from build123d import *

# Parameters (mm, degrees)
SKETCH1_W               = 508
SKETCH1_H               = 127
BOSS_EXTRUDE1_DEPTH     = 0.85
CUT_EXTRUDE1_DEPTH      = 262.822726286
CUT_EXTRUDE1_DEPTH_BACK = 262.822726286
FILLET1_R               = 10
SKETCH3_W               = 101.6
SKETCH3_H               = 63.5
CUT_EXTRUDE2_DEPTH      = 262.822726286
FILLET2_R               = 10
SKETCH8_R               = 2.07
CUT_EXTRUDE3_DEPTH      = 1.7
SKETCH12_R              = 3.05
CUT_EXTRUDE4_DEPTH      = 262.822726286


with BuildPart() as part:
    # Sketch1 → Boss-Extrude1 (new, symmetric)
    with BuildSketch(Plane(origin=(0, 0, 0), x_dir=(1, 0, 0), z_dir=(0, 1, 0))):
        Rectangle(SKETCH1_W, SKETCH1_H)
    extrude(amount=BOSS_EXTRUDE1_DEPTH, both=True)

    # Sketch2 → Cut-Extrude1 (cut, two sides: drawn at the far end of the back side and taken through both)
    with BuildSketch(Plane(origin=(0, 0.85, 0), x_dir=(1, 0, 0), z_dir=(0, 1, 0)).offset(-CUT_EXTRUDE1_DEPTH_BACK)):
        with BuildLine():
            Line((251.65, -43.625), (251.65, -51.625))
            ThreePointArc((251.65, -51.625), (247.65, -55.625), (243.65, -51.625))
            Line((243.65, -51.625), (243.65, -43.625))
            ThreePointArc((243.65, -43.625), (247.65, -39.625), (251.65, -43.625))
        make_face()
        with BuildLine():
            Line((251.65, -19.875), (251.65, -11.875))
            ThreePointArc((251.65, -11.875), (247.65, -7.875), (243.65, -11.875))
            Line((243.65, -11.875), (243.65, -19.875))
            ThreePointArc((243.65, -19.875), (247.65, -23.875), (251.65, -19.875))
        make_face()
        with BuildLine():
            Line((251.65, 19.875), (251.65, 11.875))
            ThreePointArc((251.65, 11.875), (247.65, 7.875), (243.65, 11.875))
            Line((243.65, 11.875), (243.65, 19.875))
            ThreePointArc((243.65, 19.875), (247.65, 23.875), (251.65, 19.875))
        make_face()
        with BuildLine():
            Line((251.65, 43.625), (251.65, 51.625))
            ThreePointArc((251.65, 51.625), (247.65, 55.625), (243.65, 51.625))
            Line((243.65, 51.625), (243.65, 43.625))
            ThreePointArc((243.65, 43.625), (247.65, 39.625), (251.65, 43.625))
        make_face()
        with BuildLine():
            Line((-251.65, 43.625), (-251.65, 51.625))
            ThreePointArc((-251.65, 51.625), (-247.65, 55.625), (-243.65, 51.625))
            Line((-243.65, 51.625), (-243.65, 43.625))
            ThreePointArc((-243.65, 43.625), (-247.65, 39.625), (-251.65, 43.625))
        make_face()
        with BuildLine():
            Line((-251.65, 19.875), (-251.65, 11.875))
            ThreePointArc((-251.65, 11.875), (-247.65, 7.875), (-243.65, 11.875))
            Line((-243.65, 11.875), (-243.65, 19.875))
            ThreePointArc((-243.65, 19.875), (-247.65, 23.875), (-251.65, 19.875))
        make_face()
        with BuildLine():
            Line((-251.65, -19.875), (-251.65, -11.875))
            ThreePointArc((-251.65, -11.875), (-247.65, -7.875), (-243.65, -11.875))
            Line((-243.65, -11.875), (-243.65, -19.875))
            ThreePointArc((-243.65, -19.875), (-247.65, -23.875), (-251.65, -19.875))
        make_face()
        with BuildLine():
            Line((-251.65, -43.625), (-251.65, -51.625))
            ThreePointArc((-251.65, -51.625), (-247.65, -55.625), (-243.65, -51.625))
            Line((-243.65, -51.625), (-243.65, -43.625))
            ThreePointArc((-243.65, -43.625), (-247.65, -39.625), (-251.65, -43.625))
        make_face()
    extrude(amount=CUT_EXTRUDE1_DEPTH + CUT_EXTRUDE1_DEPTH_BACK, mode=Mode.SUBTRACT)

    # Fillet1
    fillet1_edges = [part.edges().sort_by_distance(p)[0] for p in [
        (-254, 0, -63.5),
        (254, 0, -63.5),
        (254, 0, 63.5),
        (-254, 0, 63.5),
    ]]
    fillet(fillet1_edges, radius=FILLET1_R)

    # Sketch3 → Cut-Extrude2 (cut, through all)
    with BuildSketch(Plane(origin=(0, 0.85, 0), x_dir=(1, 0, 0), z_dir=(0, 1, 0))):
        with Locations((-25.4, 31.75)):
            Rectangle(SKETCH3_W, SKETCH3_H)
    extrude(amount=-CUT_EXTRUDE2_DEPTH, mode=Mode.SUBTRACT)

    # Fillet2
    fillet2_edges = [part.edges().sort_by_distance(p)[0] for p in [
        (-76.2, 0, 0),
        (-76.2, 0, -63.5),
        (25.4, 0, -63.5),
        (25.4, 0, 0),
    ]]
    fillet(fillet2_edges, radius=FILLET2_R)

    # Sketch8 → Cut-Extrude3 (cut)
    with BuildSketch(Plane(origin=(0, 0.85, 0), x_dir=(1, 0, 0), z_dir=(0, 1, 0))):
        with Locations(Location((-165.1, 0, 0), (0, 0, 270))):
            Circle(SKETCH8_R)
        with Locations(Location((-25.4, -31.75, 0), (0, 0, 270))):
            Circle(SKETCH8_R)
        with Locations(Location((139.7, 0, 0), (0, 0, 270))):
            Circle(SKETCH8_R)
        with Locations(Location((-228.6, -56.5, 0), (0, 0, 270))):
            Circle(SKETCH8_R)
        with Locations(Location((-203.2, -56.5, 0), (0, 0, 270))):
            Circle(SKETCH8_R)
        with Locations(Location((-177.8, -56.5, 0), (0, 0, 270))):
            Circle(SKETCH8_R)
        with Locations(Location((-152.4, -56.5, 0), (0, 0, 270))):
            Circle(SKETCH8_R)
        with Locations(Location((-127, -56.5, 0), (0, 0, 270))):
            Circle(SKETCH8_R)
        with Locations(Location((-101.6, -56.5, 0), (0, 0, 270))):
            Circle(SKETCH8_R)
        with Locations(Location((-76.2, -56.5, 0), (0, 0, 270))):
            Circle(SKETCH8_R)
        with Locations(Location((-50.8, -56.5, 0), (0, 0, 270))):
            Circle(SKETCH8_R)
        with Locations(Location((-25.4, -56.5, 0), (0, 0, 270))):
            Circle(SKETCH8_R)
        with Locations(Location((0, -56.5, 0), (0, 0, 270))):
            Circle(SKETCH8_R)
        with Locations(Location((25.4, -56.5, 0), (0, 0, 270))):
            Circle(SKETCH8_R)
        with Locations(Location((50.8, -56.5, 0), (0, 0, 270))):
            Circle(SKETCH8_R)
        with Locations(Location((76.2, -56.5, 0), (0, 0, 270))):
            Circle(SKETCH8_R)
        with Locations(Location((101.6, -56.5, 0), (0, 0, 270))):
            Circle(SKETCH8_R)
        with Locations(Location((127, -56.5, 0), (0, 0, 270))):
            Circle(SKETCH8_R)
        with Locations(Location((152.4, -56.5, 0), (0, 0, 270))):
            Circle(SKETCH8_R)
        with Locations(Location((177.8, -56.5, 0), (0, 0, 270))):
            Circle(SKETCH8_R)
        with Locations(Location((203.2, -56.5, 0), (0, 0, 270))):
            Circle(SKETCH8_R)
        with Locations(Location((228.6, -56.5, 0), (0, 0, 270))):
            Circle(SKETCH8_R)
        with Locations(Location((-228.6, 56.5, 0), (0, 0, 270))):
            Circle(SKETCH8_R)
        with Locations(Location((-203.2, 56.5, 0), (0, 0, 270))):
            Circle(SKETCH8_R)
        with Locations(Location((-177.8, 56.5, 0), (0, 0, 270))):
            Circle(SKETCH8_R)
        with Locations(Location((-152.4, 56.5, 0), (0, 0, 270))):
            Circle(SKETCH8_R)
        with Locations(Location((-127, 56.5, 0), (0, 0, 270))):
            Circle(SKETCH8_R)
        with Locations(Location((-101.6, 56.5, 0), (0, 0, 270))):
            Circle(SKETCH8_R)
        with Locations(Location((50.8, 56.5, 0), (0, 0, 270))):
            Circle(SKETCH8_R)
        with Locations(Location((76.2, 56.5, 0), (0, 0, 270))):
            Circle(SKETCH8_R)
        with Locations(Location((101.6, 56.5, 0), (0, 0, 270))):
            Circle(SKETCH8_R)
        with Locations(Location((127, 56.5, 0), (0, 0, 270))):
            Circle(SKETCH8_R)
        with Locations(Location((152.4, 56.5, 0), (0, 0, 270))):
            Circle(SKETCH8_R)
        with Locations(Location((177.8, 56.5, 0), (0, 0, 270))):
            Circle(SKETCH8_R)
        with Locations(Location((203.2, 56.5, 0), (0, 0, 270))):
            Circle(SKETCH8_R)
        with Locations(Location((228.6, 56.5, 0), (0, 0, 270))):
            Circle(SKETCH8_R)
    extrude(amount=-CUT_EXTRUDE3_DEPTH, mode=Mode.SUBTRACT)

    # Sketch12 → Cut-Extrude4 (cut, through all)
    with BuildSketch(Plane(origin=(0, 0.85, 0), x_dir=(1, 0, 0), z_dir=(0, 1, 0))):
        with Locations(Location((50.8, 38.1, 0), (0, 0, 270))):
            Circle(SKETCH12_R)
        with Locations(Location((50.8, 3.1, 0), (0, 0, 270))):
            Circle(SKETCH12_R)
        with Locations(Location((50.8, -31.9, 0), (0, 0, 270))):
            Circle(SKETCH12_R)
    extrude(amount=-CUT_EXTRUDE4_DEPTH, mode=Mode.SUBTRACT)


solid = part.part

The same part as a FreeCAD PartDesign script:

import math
import FreeCAD as App
import Part
import Sketcher

V = App.Vector


def edges_at(feature, points):
    """Names of the edges that pass closest to the given points."""
    edges = feature.Shape.Edges
    near = lambda p: min(range(len(edges)), key=lambda i: edges[i].distToShape(Part.Vertex(*p))[0])
    return sorted({f"Edge{near(p) + 1}" for p in points})


def add_polygon(sketch, points):
    """Adds a closed chain of lines whose ends are joined by coincident constraints."""
    first, n = sketch.GeometryCount, len(points)
    for a, b in zip(points, points[1:] + points[:1]):
        sketch.addGeometry(Part.LineSegment(App.Vector(*a, 0), App.Vector(*b, 0)), False)
    for i in range(n):
        sketch.addConstraint(Sketcher.Constraint("Coincident", first + i, 2, first + (i + 1) % n, 1))

doc = App.newDocument("Part")
body = doc.addObject("PartDesign::Body", "Body")

# Sketch on XZ plane
sketch1 = body.newObject("Sketcher::SketchObject", "Sketch")
sketch1.AttachmentSupport = (doc.getObject("XZ_Plane"), [""])
sketch1.MapMode = "FlatFace"
add_polygon(sketch1, [(-254, -64), (-254, 64), (254, 64), (254, -64)])  # lines 0-3
sketch1.addConstraint([
    Sketcher.Constraint("Vertical", 0),
    Sketcher.Constraint("Horizontal", 1),
    Sketcher.Constraint("Vertical", 2),
    Sketcher.Constraint("Horizontal", 3),
    Sketcher.Constraint("Symmetric", 0, 2, 2, 2, -1, 1),
    Sketcher.Constraint("DistanceX", 1, 1, 1, 2, 508.0),
    Sketcher.Constraint("DistanceY", 0, 1, 0, 2, 127.0),
])
pad1 = body.newObject("PartDesign::Pad", "Pad")
pad1.Profile = sketch1
pad1.Length = 1.7
pad1.Midplane = True

# Sketch on XZ plane
sketch2 = body.newObject("Sketcher::SketchObject", "Sketch001")
sketch2.AttachmentSupport = (doc.getObject("XZ_Plane"), [""])
sketch2.MapMode = "FlatFace"
sketch2.AttachmentOffset = App.Placement(V(0, 0, -0.85), App.Rotation())
sketch2.addGeometry([
    Part.LineSegment(V(251.7, 51.6, 0), V(251.7, 43.6, 0)),  # 0
    Part.ArcOfCircle(Part.Circle(V(247.7, 43.6, 0), V(0, 0, 1), 4), math.radians(180), math.radians(360)),  # 1
    Part.LineSegment(V(243.7, 43.6, 0), V(243.7, 51.6, 0)),  # 2
    Part.ArcOfCircle(Part.Circle(V(247.7, 51.6, 0), V(0, 0, 1), 4), math.radians(0), math.radians(180)),  # 3
    Part.LineSegment(V(251.7, 19.9, 0), V(251.7, 11.9, 0)),  # 4
    Part.ArcOfCircle(Part.Circle(V(247.7, 11.9, 0), V(0, 0, 1), 4), math.radians(180), math.radians(360)),  # 5
    Part.LineSegment(V(243.7, 11.9, 0), V(243.7, 19.9, 0)),  # 6
    Part.ArcOfCircle(Part.Circle(V(247.7, 19.9, 0), V(0, 0, 1), 4), math.radians(0), math.radians(180)),  # 7
    Part.LineSegment(V(251.7, -11.9, 0), V(251.7, -19.9, 0)),  # 8
    Part.ArcOfCircle(Part.Circle(V(247.7, -19.9, 0), V(0, 0, 1), 4), math.radians(180), math.radians(360)),  # 9
    Part.LineSegment(V(243.7, -19.9, 0), V(243.7, -11.9, 0)),  # 10
    Part.ArcOfCircle(Part.Circle(V(247.7, -11.9, 0), V(0, 0, 1), 4), math.radians(0), math.radians(180)),  # 11
    Part.LineSegment(V(251.7, -43.6, 0), V(251.7, -51.6, 0)),  # 12
    Part.ArcOfCircle(Part.Circle(V(247.7, -51.6, 0), V(0, 0, 1), 4), math.radians(180), math.radians(360)),  # 13
    Part.LineSegment(V(243.7, -51.6, 0), V(243.7, -43.6, 0)),  # 14
    Part.ArcOfCircle(Part.Circle(V(247.7, -43.6, 0), V(0, 0, 1), 4), math.radians(0), math.radians(180)),  # 15
    Part.LineSegment(V(-251.7, -51.6, 0), V(-251.7, -43.6, 0)),  # 16
    Part.ArcOfCircle(Part.Circle(V(-247.7, -43.6, 0), V(0, 0, 1), 4), math.radians(0), math.radians(180)),  # 17
    Part.LineSegment(V(-243.7, -43.6, 0), V(-243.7, -51.6, 0)),  # 18
    Part.ArcOfCircle(Part.Circle(V(-247.7, -51.6, 0), V(0, 0, 1), 4), math.radians(180), math.radians(360)),  # 19
    Part.LineSegment(V(-251.7, -19.9, 0), V(-251.7, -11.9, 0)),  # 20
    Part.ArcOfCircle(Part.Circle(V(-247.7, -11.9, 0), V(0, 0, 1), 4), math.radians(0), math.radians(180)),  # 21
    Part.LineSegment(V(-243.7, -11.9, 0), V(-243.7, -19.9, 0)),  # 22
    Part.ArcOfCircle(Part.Circle(V(-247.7, -19.9, 0), V(0, 0, 1), 4), math.radians(180), math.radians(360)),  # 23
    Part.LineSegment(V(-251.7, 11.9, 0), V(-251.7, 19.9, 0)),  # 24
    Part.ArcOfCircle(Part.Circle(V(-247.7, 19.9, 0), V(0, 0, 1), 4), math.radians(0), math.radians(180)),  # 25
    Part.LineSegment(V(-243.7, 19.9, 0), V(-243.7, 11.9, 0)),  # 26
    Part.ArcOfCircle(Part.Circle(V(-247.7, 11.9, 0), V(0, 0, 1), 4), math.radians(180), math.radians(360)),  # 27
    Part.LineSegment(V(-251.7, 43.6, 0), V(-251.7, 51.6, 0)),  # 28
    Part.ArcOfCircle(Part.Circle(V(-247.7, 51.6, 0), V(0, 0, 1), 4), math.radians(0), math.radians(180)),  # 29
    Part.LineSegment(V(-243.7, 51.6, 0), V(-243.7, 43.6, 0)),  # 30
    Part.ArcOfCircle(Part.Circle(V(-247.7, 43.6, 0), V(0, 0, 1), 4), math.radians(180), math.radians(360)),  # 31
], False)
sketch2.addConstraint([
    Sketcher.Constraint("Tangent", 0, 2, 1, 2),
    Sketcher.Constraint("Tangent", 1, 1, 2, 1),
    Sketcher.Constraint("Tangent", 2, 2, 3, 2),
    Sketcher.Constraint("Tangent", 3, 1, 0, 1),
    Sketcher.Constraint("Tangent", 4, 2, 5, 2),
    Sketcher.Constraint("Tangent", 5, 1, 6, 1),
    Sketcher.Constraint("Tangent", 6, 2, 7, 2),
    Sketcher.Constraint("Tangent", 7, 1, 4, 1),
    Sketcher.Constraint("Tangent", 8, 2, 9, 2),
    Sketcher.Constraint("Tangent", 9, 1, 10, 1),
    Sketcher.Constraint("Tangent", 10, 2, 11, 2),
    Sketcher.Constraint("Tangent", 11, 1, 8, 1),
    Sketcher.Constraint("Tangent", 12, 2, 13, 2),
    Sketcher.Constraint("Tangent", 13, 1, 14, 1),
    Sketcher.Constraint("Tangent", 14, 2, 15, 2),
    Sketcher.Constraint("Tangent", 15, 1, 12, 1),
    Sketcher.Constraint("Tangent", 16, 2, 17, 2),
    Sketcher.Constraint("Tangent", 17, 1, 18, 1),
    Sketcher.Constraint("Tangent", 18, 2, 19, 2),
    Sketcher.Constraint("Tangent", 19, 1, 16, 1),
    Sketcher.Constraint("Tangent", 20, 2, 21, 2),
    Sketcher.Constraint("Tangent", 21, 1, 22, 1),
    Sketcher.Constraint("Tangent", 22, 2, 23, 2),
    Sketcher.Constraint("Tangent", 23, 1, 20, 1),
    Sketcher.Constraint("Tangent", 24, 2, 25, 2),
    Sketcher.Constraint("Tangent", 25, 1, 26, 1),
    Sketcher.Constraint("Tangent", 26, 2, 27, 2),
    Sketcher.Constraint("Tangent", 27, 1, 24, 1),
    Sketcher.Constraint("Tangent", 28, 2, 29, 2),
    Sketcher.Constraint("Tangent", 29, 1, 30, 1),
    Sketcher.Constraint("Tangent", 30, 2, 31, 2),
    Sketcher.Constraint("Tangent", 31, 1, 28, 1),
    Sketcher.Constraint("Vertical", 0),
    Sketcher.Constraint("Vertical", 2),
    Sketcher.Constraint("Vertical", 4),
    Sketcher.Constraint("Vertical", 6),
    Sketcher.Constraint("Vertical", 8),
    Sketcher.Constraint("Vertical", 10),
    Sketcher.Constraint("Vertical", 12),
    Sketcher.Constraint("Vertical", 14),
    Sketcher.Constraint("Vertical", 16),
    Sketcher.Constraint("Vertical", 18),
    Sketcher.Constraint("Vertical", 20),
    Sketcher.Constraint("Vertical", 22),
    Sketcher.Constraint("Vertical", 24),
    Sketcher.Constraint("Vertical", 26),
    Sketcher.Constraint("Vertical", 28),
    Sketcher.Constraint("Vertical", 30),
    Sketcher.Constraint("Equal", 3, 5),
    Sketcher.Constraint("Equal", 7, 9),
    Sketcher.Constraint("Equal", 11, 13),
    Sketcher.Constraint("Equal", 15, 17),
    Sketcher.Constraint("Equal", 19, 21),
    Sketcher.Constraint("Equal", 23, 25),
    Sketcher.Constraint("Equal", 27, 29),
    Sketcher.Constraint("Symmetric", 1, 3, 17, 3, -1, 1),
    Sketcher.Constraint("Symmetric", 5, 3, 21, 3, -1, 1),
    Sketcher.Constraint("Symmetric", 9, 3, 25, 3, -1, 1),
    Sketcher.Constraint("Symmetric", 13, 3, 29, 3, -1, 1),
    Sketcher.Constraint("Symmetric", 15, 3, 17, 3, -2),
    Sketcher.Constraint("Symmetric", 11, 3, 21, 3, -2),
    Sketcher.Constraint("Horizontal", 13, 3, 19, 3),
    Sketcher.Constraint("Horizontal", 9, 3, 23, 3),
    Sketcher.Constraint("Horizontal", 7, 3, 25, 3),
    Sketcher.Constraint("Horizontal", 5, 3, 27, 3),
    Sketcher.Constraint("Horizontal", 3, 3, 29, 3),
    Sketcher.Constraint("Horizontal", 1, 3, 31, 3),
    Sketcher.Constraint("Vertical", 3, 3, 5, 3),
    Sketcher.Constraint("Equal", 2, 4),
    Sketcher.Constraint("Radius", 1, 4.0),
    Sketcher.Constraint("DistanceY", 0, 2, 0, 1, 8.0),
    Sketcher.Constraint("DistanceY", 9, 3, 1, 3, 63.5),
    Sketcher.Constraint("DistanceX", 17, 3, 15, 3, 495.3),
    Sketcher.Constraint("DistanceY", 5, 3, 1, 3, 31.75),
])
pocket1 = body.newObject("PartDesign::Pocket", "Pocket")
pocket1.Profile = sketch2
pocket1.Type = "ThroughAll"
pocket1.Midplane = True
doc.recompute()

fillet = body.newObject("PartDesign::Fillet", "Fillet")
fillet.Base = (pocket1, edges_at(pocket1, [
    (-254, 0, -63.5),
    (254, 0, -63.5),
    (254, 0, 63.5),
    (-254, 0, 63.5),
]))
fillet.Radius = 10

# Sketch on XZ plane
sketch3 = body.newObject("Sketcher::SketchObject", "Sketch002")
sketch3.AttachmentSupport = (doc.getObject("XZ_Plane"), [""])
sketch3.MapMode = "FlatFace"
sketch3.AttachmentOffset = App.Placement(V(0, 0, -0.85), App.Rotation())
add_polygon(sketch3, [(-76, -64), (-76, 0), (25, 0), (25, -64)])  # lines 0-3
sketch3.addConstraint([
    Sketcher.Constraint("Vertical", 0),
    Sketcher.Constraint("Horizontal", 1),
    Sketcher.Constraint("Vertical", 2),
    Sketcher.Constraint("Horizontal", 3),
    Sketcher.Constraint("PointOnObject", 0, 2, -1),
    Sketcher.Constraint("DistanceX", 1, 1, 1, 2, 101.6),
    Sketcher.Constraint("DistanceY", 0, 1, 0, 2, 63.5),
    Sketcher.Constraint("DistanceX", 0, 2, -1, 1, 76.2),
])
pocket2 = body.newObject("PartDesign::Pocket", "Pocket001")
pocket2.Profile = sketch3
pocket2.Type = "ThroughAll"
pocket2.Reversed = True
doc.recompute()

fillet2 = body.newObject("PartDesign::Fillet", "Fillet001")
fillet2.Base = (pocket2, edges_at(pocket2, [
    (-76.2, 0, 0),
    (-76.2, 0, -63.5),
    (25.4, 0, -63.5),
    (25.4, 0, 0),
]))
fillet2.Radius = 10

# Sketch on XZ plane
sketch4 = body.newObject("Sketcher::SketchObject", "Sketch003")
sketch4.AttachmentSupport = (doc.getObject("XZ_Plane"), [""])
sketch4.MapMode = "FlatFace"
sketch4.AttachmentOffset = App.Placement(V(0, 0, -0.85), App.Rotation())
sketch4.addGeometry([
    Part.Circle(V(-165.1, 0, 0), V(0, 0, 1), 2.1),  # 0
    Part.Circle(V(-25.4, 31.8, 0), V(0, 0, 1), 2.1),  # 1
    Part.Circle(V(139.7, 0, 0), V(0, 0, 1), 2.1),  # 2
    Part.Circle(V(-228.6, 56.5, 0), V(0, 0, 1), 2.1),  # 3
    Part.Circle(V(-203.2, 56.5, 0), V(0, 0, 1), 2.1),  # 4
    Part.Circle(V(-177.8, 56.5, 0), V(0, 0, 1), 2.1),  # 5
    Part.Circle(V(-152.4, 56.5, 0), V(0, 0, 1), 2.1),  # 6
    Part.Circle(V(-127, 56.5, 0), V(0, 0, 1), 2.1),  # 7
    Part.Circle(V(-101.6, 56.5, 0), V(0, 0, 1), 2.1),  # 8
    Part.Circle(V(-76.2, 56.5, 0), V(0, 0, 1), 2.1),  # 9
    Part.Circle(V(-50.8, 56.5, 0), V(0, 0, 1), 2.1),  # 10
    Part.Circle(V(-25.4, 56.5, 0), V(0, 0, 1), 2.1),  # 11
    Part.Circle(V(0, 56.5, 0), V(0, 0, 1), 2.1),  # 12
    Part.Circle(V(25.4, 56.5, 0), V(0, 0, 1), 2.1),  # 13
    Part.Circle(V(50.8, 56.5, 0), V(0, 0, 1), 2.1),  # 14
    Part.Circle(V(76.2, 56.5, 0), V(0, 0, 1), 2.1),  # 15
    Part.Circle(V(101.6, 56.5, 0), V(0, 0, 1), 2.1),  # 16
    Part.Circle(V(127, 56.5, 0), V(0, 0, 1), 2.1),  # 17
    Part.Circle(V(152.4, 56.5, 0), V(0, 0, 1), 2.1),  # 18
    Part.Circle(V(177.8, 56.5, 0), V(0, 0, 1), 2.1),  # 19
    Part.Circle(V(203.2, 56.5, 0), V(0, 0, 1), 2.1),  # 20
    Part.Circle(V(228.6, 56.5, 0), V(0, 0, 1), 2.1),  # 21
    Part.Circle(V(-228.6, -56.5, 0), V(0, 0, 1), 2.1),  # 22
    Part.Circle(V(-203.2, -56.5, 0), V(0, 0, 1), 2.1),  # 23
    Part.Circle(V(-177.8, -56.5, 0), V(0, 0, 1), 2.1),  # 24
    Part.Circle(V(-152.4, -56.5, 0), V(0, 0, 1), 2.1),  # 25
    Part.Circle(V(-127, -56.5, 0), V(0, 0, 1), 2.1),  # 26
    Part.Circle(V(-101.6, -56.5, 0), V(0, 0, 1), 2.1),  # 27
    Part.Circle(V(50.8, -56.5, 0), V(0, 0, 1), 2.1),  # 28
    Part.Circle(V(76.2, -56.5, 0), V(0, 0, 1), 2.1),  # 29
    Part.Circle(V(101.6, -56.5, 0), V(0, 0, 1), 2.1),  # 30
    Part.Circle(V(127, -56.5, 0), V(0, 0, 1), 2.1),  # 31
    Part.Circle(V(152.4, -56.5, 0), V(0, 0, 1), 2.1),  # 32
    Part.Circle(V(177.8, -56.5, 0), V(0, 0, 1), 2.1),  # 33
    Part.Circle(V(203.2, -56.5, 0), V(0, 0, 1), 2.1),  # 34
    Part.Circle(V(228.6, -56.5, 0), V(0, 0, 1), 2.1),  # 35
], False)
sketch4.addConstraint([
    Sketcher.Constraint("Equal", 0, 1),
    Sketcher.Constraint("Equal", 1, 2),
    Sketcher.Constraint("Equal", 2, 3),
    Sketcher.Constraint("Equal", 3, 4),
    Sketcher.Constraint("Equal", 4, 5),
    Sketcher.Constraint("Equal", 5, 6),
    Sketcher.Constraint("Equal", 6, 7),
    Sketcher.Constraint("Equal", 7, 8),
    Sketcher.Constraint("Equal", 8, 9),
    Sketcher.Constraint("Equal", 9, 10),
    Sketcher.Constraint("Equal", 10, 11),
    Sketcher.Constraint("Equal", 11, 12),
    Sketcher.Constraint("Equal", 12, 13),
    Sketcher.Constraint("Equal", 13, 14),
    Sketcher.Constraint("Equal", 14, 15),
    Sketcher.Constraint("Equal", 15, 16),
    Sketcher.Constraint("Equal", 16, 17),
    Sketcher.Constraint("Equal", 17, 18),
    Sketcher.Constraint("Equal", 18, 19),
    Sketcher.Constraint("Equal", 19, 20),
    Sketcher.Constraint("Equal", 20, 21),
    Sketcher.Constraint("Equal", 21, 22),
    Sketcher.Constraint("Equal", 22, 23),
    Sketcher.Constraint("Equal", 23, 24),
    Sketcher.Constraint("Equal", 24, 25),
    Sketcher.Constraint("Equal", 25, 26),
    Sketcher.Constraint("Equal", 26, 27),
    Sketcher.Constraint("Equal", 27, 28),
    Sketcher.Constraint("Equal", 28, 29),
    Sketcher.Constraint("Equal", 29, 30),
    Sketcher.Constraint("Equal", 30, 31),
    Sketcher.Constraint("Equal", 31, 32),
    Sketcher.Constraint("Equal", 32, 33),
    Sketcher.Constraint("Equal", 33, 34),
    Sketcher.Constraint("Equal", 34, 35),
    Sketcher.Constraint("Symmetric", 21, 3, 22, 3, -1, 1),
    Sketcher.Constraint("Symmetric", 20, 3, 23, 3, -1, 1),
    Sketcher.Constraint("Symmetric", 19, 3, 24, 3, -1, 1),
    Sketcher.Constraint("Symmetric", 18, 3, 25, 3, -1, 1),
    Sketcher.Constraint("Symmetric", 17, 3, 26, 3, -1, 1),
    Sketcher.Constraint("Symmetric", 16, 3, 27, 3, -1, 1),
    Sketcher.Constraint("Symmetric", 10, 3, 28, 3, -1, 1),
    Sketcher.Constraint("Symmetric", 9, 3, 29, 3, -1, 1),
    Sketcher.Constraint("Symmetric", 8, 3, 30, 3, -1, 1),
    Sketcher.Constraint("Symmetric", 7, 3, 31, 3, -1, 1),
    Sketcher.Constraint("Symmetric", 6, 3, 32, 3, -1, 1),
    Sketcher.Constraint("Symmetric", 5, 3, 33, 3, -1, 1),
    Sketcher.Constraint("Symmetric", 4, 3, 34, 3, -1, 1),
    Sketcher.Constraint("Symmetric", 3, 3, 35, 3, -1, 1),
    Sketcher.Constraint("Symmetric", 11, 3, 13, 3, -2),
    Sketcher.Constraint("Symmetric", 10, 3, 14, 3, -2),
    Sketcher.Constraint("Symmetric", 9, 3, 15, 3, -2),
    Sketcher.Constraint("Symmetric", 8, 3, 16, 3, -2),
    Sketcher.Constraint("Symmetric", 7, 3, 17, 3, -2),
    Sketcher.Constraint("Symmetric", 6, 3, 18, 3, -2),
    Sketcher.Constraint("Symmetric", 5, 3, 19, 3, -2),
    Sketcher.Constraint("Symmetric", 4, 3, 20, 3, -2),
    Sketcher.Constraint("Symmetric", 3, 3, 21, 3, -2),
    Sketcher.Constraint("PointOnObject", 0, 3, -1),
    Sketcher.Constraint("PointOnObject", 2, 3, -1),
    Sketcher.Constraint("PointOnObject", 12, 3, -2),
    Sketcher.Constraint("Horizontal", 3, 3, 4, 3),
    Sketcher.Constraint("Horizontal", 4, 3, 5, 3),
    Sketcher.Constraint("Horizontal", 5, 3, 6, 3),
    Sketcher.Constraint("Horizontal", 6, 3, 7, 3),
    Sketcher.Constraint("Horizontal", 7, 3, 8, 3),
    Sketcher.Constraint("Horizontal", 8, 3, 9, 3),
    Sketcher.Constraint("Horizontal", 9, 3, 10, 3),
    Sketcher.Constraint("Horizontal", 10, 3, 11, 3),
    Sketcher.Constraint("Horizontal", 11, 3, 12, 3),
    Sketcher.Constraint("Vertical", 1, 3, 11, 3),
    Sketcher.Constraint("Diameter", 0, 4.14),
    Sketcher.Constraint("DistanceX", 7, 3, -1, 1, 127.0),
    Sketcher.Constraint("DistanceX", 6, 3, 1, 3, 127.0),
    Sketcher.Constraint("DistanceY", 22, 3, 3, 3, 113.0),
    Sketcher.Constraint("DistanceX", 0, 3, -1, 1, 165.1),
    Sketcher.Constraint("DistanceX", 1, 3, -1, 1, 25.4),
    Sketcher.Constraint("DistanceX", -1, 1, 2, 3, 139.7),
    Sketcher.Constraint("DistanceX", 3, 3, -1, 1, 228.6),
    Sketcher.Constraint("DistanceX", 4, 3, -1, 1, 203.2),
    Sketcher.Constraint("DistanceX", 5, 3, -1, 1, 177.8),
    Sketcher.Constraint("DistanceX", 8, 3, -1, 1, 101.6),
    Sketcher.Constraint("DistanceX", 9, 3, -1, 1, 76.2),
    Sketcher.Constraint("DistanceX", 10, 3, -1, 1, 50.8),
    Sketcher.Constraint("DistanceY", -1, 1, 1, 3, 31.75),
])
pocket3 = body.newObject("PartDesign::Pocket", "Pocket002")
pocket3.Profile = sketch4
pocket3.Length = 1.7
pocket3.Reversed = True

# Sketch on XZ plane
sketch5 = body.newObject("Sketcher::SketchObject", "Sketch004")
sketch5.AttachmentSupport = (doc.getObject("XZ_Plane"), [""])
sketch5.MapMode = "FlatFace"
sketch5.AttachmentOffset = App.Placement(V(0, 0, -0.85), App.Rotation())
sketch5.addGeometry([
    Part.Circle(V(50.8, -38.1, 0), V(0, 0, 1), 3),
    Part.Circle(V(50.8, -3.1, 0), V(0, 0, 1), 3),
    Part.Circle(V(50.8, 31.9, 0), V(0, 0, 1), 3),
], False)
sketch5.addConstraint([
    Sketcher.Constraint("Equal", 0, 1),
    Sketcher.Constraint("Equal", 1, 2),
    Sketcher.Constraint("Vertical", 0, 3, 1, 3),
    Sketcher.Constraint("Vertical", 1, 3, 2, 3),
    Sketcher.Constraint("Diameter", 0, 6.1),
    Sketcher.Constraint("DistanceY", 0, 3, 1, 3, 35.0),
    Sketcher.Constraint("DistanceY", 1, 3, 2, 3, 35.0),
    Sketcher.Constraint("DistanceX", -1, 1, 0, 3, 50.8),
    Sketcher.Constraint("DistanceY", 0, 3, -1, 1, 38.1),
])
pocket4 = body.newObject("PartDesign::Pocket", "Pocket003")
pocket4.Profile = sketch5
pocket4.Type = "ThroughAll"
pocket4.Reversed = True

doc.recompute()
